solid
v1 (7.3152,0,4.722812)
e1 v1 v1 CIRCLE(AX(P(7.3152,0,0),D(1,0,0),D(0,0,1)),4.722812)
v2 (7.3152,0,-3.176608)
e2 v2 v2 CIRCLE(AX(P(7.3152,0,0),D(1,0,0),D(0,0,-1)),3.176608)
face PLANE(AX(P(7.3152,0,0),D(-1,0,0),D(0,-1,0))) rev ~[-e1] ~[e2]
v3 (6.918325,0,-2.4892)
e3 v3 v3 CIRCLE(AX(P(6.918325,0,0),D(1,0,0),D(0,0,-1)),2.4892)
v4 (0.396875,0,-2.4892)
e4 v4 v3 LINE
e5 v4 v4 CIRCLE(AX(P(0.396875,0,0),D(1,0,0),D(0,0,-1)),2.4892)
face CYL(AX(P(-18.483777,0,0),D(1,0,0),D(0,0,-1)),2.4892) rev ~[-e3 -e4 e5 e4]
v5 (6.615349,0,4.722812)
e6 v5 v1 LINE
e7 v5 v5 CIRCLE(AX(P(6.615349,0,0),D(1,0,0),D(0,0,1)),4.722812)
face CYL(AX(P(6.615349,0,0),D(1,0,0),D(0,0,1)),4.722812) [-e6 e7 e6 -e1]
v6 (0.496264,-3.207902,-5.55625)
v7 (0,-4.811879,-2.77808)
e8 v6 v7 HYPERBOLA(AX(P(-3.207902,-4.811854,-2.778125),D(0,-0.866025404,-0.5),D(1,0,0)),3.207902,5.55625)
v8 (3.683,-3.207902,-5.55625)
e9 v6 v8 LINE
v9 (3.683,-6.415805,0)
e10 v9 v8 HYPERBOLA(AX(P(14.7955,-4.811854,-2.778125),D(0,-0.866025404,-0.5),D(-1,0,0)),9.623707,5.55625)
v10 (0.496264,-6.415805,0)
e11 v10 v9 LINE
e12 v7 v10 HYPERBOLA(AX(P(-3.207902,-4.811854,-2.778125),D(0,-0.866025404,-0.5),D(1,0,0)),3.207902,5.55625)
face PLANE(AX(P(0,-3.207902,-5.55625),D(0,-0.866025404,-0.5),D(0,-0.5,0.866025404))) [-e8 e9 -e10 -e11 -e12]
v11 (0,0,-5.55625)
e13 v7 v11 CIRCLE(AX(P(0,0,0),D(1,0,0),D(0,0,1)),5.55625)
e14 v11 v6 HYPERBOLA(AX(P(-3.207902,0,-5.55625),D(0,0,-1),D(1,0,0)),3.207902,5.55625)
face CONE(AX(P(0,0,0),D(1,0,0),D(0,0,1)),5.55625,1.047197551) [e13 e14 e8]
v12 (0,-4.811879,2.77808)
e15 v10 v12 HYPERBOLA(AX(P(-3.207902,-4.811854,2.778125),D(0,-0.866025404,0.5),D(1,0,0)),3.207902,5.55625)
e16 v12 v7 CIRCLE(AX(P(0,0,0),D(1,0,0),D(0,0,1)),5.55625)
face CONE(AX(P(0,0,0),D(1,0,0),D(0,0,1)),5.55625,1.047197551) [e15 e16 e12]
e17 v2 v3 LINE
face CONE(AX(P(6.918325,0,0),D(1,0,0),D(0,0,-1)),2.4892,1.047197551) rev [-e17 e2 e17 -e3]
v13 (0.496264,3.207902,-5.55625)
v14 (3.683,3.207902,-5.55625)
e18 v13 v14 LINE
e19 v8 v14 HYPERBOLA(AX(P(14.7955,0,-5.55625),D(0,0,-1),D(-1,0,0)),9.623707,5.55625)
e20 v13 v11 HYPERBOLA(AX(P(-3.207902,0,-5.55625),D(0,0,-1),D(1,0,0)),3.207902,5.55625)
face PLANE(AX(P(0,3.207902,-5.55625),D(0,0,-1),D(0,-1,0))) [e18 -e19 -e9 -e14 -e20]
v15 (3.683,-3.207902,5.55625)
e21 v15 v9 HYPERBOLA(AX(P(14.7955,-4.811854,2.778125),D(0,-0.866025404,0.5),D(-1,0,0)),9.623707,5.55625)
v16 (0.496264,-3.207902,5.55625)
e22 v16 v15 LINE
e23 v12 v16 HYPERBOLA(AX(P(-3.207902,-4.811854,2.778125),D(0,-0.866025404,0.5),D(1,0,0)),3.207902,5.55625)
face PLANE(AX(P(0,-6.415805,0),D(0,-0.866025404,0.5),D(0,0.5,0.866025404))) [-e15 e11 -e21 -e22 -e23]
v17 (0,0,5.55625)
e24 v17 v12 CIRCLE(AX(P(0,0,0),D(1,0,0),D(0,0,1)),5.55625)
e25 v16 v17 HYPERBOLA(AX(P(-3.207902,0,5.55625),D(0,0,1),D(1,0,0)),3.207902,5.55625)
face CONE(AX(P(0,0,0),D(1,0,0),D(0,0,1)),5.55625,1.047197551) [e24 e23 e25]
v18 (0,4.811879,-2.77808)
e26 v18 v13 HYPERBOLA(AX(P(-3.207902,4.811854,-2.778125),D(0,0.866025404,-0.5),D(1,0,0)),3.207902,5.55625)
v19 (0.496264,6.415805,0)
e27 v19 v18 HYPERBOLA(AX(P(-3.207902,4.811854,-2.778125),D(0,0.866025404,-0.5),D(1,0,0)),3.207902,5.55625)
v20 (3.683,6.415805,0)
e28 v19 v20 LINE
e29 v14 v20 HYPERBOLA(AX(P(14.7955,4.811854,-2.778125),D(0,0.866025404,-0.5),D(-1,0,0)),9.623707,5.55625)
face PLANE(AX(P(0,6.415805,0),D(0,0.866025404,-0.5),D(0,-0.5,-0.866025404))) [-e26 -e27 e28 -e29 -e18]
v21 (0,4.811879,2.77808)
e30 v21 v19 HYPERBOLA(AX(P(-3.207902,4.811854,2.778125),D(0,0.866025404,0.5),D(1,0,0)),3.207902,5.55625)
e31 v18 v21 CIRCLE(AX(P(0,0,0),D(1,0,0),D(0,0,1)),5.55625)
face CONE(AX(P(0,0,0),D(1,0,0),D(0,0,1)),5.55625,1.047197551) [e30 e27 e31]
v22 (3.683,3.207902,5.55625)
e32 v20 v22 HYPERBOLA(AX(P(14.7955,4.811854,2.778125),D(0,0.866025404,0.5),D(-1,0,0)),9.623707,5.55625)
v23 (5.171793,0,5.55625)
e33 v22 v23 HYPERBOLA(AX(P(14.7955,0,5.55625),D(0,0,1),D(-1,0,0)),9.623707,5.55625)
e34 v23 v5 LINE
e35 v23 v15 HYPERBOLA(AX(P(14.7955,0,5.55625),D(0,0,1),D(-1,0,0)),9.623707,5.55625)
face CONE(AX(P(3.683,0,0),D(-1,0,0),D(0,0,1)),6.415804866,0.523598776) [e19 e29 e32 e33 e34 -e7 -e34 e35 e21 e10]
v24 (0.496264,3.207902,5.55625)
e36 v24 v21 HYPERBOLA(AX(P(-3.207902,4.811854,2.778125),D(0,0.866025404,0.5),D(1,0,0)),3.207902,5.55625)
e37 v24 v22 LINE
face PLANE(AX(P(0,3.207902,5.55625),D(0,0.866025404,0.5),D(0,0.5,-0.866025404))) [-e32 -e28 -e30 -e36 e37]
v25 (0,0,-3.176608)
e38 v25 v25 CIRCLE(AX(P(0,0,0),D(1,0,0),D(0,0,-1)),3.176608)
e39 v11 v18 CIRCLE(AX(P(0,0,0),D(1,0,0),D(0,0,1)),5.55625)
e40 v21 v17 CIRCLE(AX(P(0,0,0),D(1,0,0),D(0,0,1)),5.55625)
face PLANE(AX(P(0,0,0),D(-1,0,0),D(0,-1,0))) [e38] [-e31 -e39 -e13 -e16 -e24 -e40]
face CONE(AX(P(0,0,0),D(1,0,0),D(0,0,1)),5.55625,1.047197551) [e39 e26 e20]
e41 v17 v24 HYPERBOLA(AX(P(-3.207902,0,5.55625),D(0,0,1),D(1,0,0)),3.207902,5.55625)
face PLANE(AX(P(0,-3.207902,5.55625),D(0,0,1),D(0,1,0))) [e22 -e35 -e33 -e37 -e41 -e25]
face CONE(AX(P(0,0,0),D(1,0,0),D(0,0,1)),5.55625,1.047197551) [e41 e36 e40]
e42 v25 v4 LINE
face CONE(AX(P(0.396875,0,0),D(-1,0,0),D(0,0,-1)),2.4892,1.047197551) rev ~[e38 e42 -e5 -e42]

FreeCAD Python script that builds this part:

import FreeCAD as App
import Part
import Sketcher
Q = App.Units.Quantity


def edges_at(feature, points):
    """Names of the edges that pass closest to the given points."""
    edges = feature.Shape.Edges
    near = lambda p: min(range(len(edges)), key=lambda i: edges[i].distToShape(Part.Vertex(*p))[0])
    return sorted({f"Edge{near(p) + 1}" for p in points})

doc = App.newDocument("Part")
params = doc.addObject("Spreadsheet::Sheet", "Params")
for row, (alias, value) in enumerate([
    ("pad1_length", "0.288 in"),
    ("sketch2_diameter", "0.196 in"),
    ("hole_diameter", "0.196 in"),
    ("chamfer_size", "0.687408 mm"),
    ("chamfer_size2", "0.015625 in"),
    ("chamfer2_size", "0.687408 mm"),
    ("chamfer2_size2", "0.015625 in"),
    ("sketch3_width", "0.143 in"),
    ("groove_angle", "360 deg"),
], start=1):
    params.set(f"A{row}", alias)
    params.set(f"B{row}", "=" + value)
    params.setAlias(f"B{row}", alias)

body = doc.addObject("PartDesign::Body", "Body")

sketch1 = body.newObject("Sketcher::SketchObject", "Sketch")
sketch1.AttachmentSupport = (doc.getObject("YZ_Plane"), [""])
sketch1.MapMode = "FlatFace"
sketch1.addGeometry([
    Part.LineSegment(App.Vector(-3.207902, 5.55625, 0), App.Vector(-6.415805, 0, 0)),
    Part.LineSegment(App.Vector(-6.415805, 0, 0), App.Vector(-3.207902, -5.55625, 0)),
    Part.LineSegment(App.Vector(-3.207902, -5.55625, 0), App.Vector(3.207902, -5.55625, 0)),
    Part.LineSegment(App.Vector(3.207902, -5.55625, 0), App.Vector(6.415805, 0, 0)),
    Part.LineSegment(App.Vector(6.415805, 0, 0), App.Vector(3.207902, 5.55625, 0)),
    Part.LineSegment(App.Vector(3.207902, 5.55625, 0), App.Vector(-3.207902, 5.55625, 0)),
], False)
sketch1.addConstraint([
    Sketcher.Constraint("Coincident", 0, 2, 1, 1),
    Sketcher.Constraint("Coincident", 1, 2, 2, 1),
    Sketcher.Constraint("Coincident", 2, 2, 3, 1),
    Sketcher.Constraint("Coincident", 3, 2, 4, 1),
    Sketcher.Constraint("Coincident", 4, 2, 5, 1),
    Sketcher.Constraint("Coincident", 5, 2, 0, 1),
    Sketcher.Constraint("Horizontal", 2),
    Sketcher.Constraint("Horizontal", 5),
    Sketcher.Constraint("Symmetric", 0, 2, 3, 2, -1, 1),
    Sketcher.Constraint("Symmetric", 1, 2, 4, 2, -1, 1),
    Sketcher.Constraint("PointOnObject", 0, 2, -1),
    Sketcher.Constraint("Parallel", 0, 3),
    Sketcher.Constraint("Vertical", 2, 2, 4, 2),
    Sketcher.Constraint("Angle", 0, Q("-120 deg")),
    Sketcher.Constraint("DistanceY", 1, 2, -1, 1, Q("0.21875 in")),
    Sketcher.Constraint("DistanceX", 2, 1, 2, 2, Q("6.415805 mm")),
])
pad1 = body.newObject("PartDesign::Pad", "Pad")
pad1.Profile = sketch1
pad1.setExpression("Length", "Params.pad1_length")

sketch2 = body.newObject("Sketcher::SketchObject", "Sketch001")
sketch2.AttachmentSupport = (doc.getObject("YZ_Plane"), [""])
sketch2.MapMode = "FlatFace"
sketch2.addGeometry(Part.Circle(App.Vector(0, 0, 0), App.Vector(0, 0, 1), 2.4892), False)
sketch2.addConstraint([
    Sketcher.Constraint("Coincident", 0, 3, -1, 1),
    Sketcher.Constraint("Diameter", 0, Q("0.196 in")),
])
sketch2.setExpression("Constraints[1]", "Params.sketch2_diameter")
doc.recompute()
hole = body.newObject("PartDesign::Hole", "Hole")
hole.Profile = sketch2
hole.ThreadType = "None"
hole.setExpression("Diameter", "Params.hole_diameter")
hole.DepthType = "ThroughAll"
hole.Reversed = True
doc.recompute()

chamfer = body.newObject("PartDesign::Chamfer", "Chamfer")
chamfer.Base = (hole, edges_at(hole, [(0, 0, 2.489)]))
chamfer.ChamferType = "Two distances"
chamfer.setExpression("Size", "Params.chamfer_size")
chamfer.setExpression("Size2", "Params.chamfer_size2")
doc.recompute()

chamfer2 = body.newObject("PartDesign::Chamfer", "Chamfer001")
chamfer2.Base = (chamfer, edges_at(chamfer, [(7.315, 0, 2.489)]))
chamfer2.ChamferType = "Two distances"
chamfer2.setExpression("Size", "Params.chamfer2_size")
chamfer2.setExpression("Size2", "Params.chamfer2_size2")
chamfer2.FlipDirection = True

sketch3 = body.newObject("Sketcher::SketchObject", "Sketch002")
sketch3.AttachmentSupport = (doc.getObject("XY_Plane"), [""])
sketch3.MapMode = "FlatFace"
sketch3.addGeometry([
    Part.LineSegment(App.Vector(0, 5.55625, 0), App.Vector(0.496264, 6.415805, 0)),
    Part.LineSegment(App.Vector(0.496264, 6.415805, 0), App.Vector(0, 6.415805, 0)),
    Part.LineSegment(App.Vector(0, 6.415805, 0), App.Vector(0, 5.55625, 0)),
    Part.LineSegment(App.Vector(7.3152, 4.722812, 0), App.Vector(7.3152, 6.415805, 0)),
    Part.LineSegment(App.Vector(7.3152, 6.415805, 0), App.Vector(3.683, 6.415805, 0)),
    Part.LineSegment(App.Vector(3.683, 6.415805, 0), App.Vector(6.615349, 4.722812, 0)),
    Part.LineSegment(App.Vector(6.615349, 4.722812, 0), App.Vector(7.3152, 4.722812, 0)),
], False)
sketch3.addConstraint([
    Sketcher.Constraint("Coincident", 0, 2, 1, 1),
    Sketcher.Constraint("Coincident", 1, 2, 2, 1),
    Sketcher.Constraint("Coincident", 2, 2, 0, 1),
    Sketcher.Constraint("Coincident", 3, 2, 4, 1),
    Sketcher.Constraint("Coincident", 4, 2, 5, 1),
    Sketcher.Constraint("Coincident", 5, 2, 6, 1),
    Sketcher.Constraint("Coincident", 6, 2, 3, 1),
    Sketcher.Constraint("Horizontal", 1),
    Sketcher.Constraint("Vertical", 2),
    Sketcher.Constraint("Vertical", 3),
    Sketcher.Constraint("Horizontal", 4),
    Sketcher.Constraint("Horizontal", 6),
    Sketcher.Constraint("PointOnObject", 1, 2, -2),
    Sketcher.Constraint("Perpendicular", 0, 5),
    Sketcher.Constraint("Horizontal", 1, 2, 3, 2),
    Sketcher.Constraint("Angle", 0, Q("60 deg")),
    Sketcher.Constraint("DistanceX", 4, 2, 4, 1, Q("0.143 in")),
    Sketcher.Constraint("DistanceY", -1, 1, 2, 2, Q("0.21875 in")),
    Sketcher.Constraint("DistanceX", -1, 1, 3, 2, Q("0.288 in")),
    Sketcher.Constraint("DistanceX", 6, 1, 6, 2, Q("0.699851 mm")),
    Sketcher.Constraint("Distance", 0, Q("0.992528 mm")),
])
sketch3.setExpression("Constraints[16]", "Params.sketch3_width")
groove = body.newObject("PartDesign::Groove", "Groove")
groove.Profile = sketch3
groove.ReferenceAxis = (sketch3, ["H_Axis"])
groove.setExpression("Angle", "Params.groove_angle")

doc.recompute()
